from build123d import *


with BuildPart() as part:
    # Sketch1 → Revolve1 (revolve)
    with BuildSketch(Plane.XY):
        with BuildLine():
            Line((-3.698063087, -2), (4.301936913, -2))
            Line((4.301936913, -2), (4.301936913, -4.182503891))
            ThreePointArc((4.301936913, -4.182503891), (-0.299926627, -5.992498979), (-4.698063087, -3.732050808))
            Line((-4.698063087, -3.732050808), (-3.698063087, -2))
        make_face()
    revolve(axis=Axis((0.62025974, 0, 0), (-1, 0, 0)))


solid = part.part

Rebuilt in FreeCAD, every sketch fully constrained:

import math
import FreeCAD as App
import Part
import Sketcher
Q = App.Units.Quantity

doc = App.newDocument("Part")
body = doc.addObject("PartDesign::Body", "Body")

sketch1 = body.newObject("Sketcher::SketchObject", "Sketch")
sketch1.AttachmentSupport = (doc.getObject("XY_Plane"), [""])
sketch1.MapMode = "FlatFace"
sketch1.addGeometry(Part.LineSegment(App.Vector(4.3, -2, 0), App.Vector(-3.7, -2, 0)), False)
sketch1.addGeometry(Part.LineSegment(App.Vector(-3.7, -2, 0), App.Vector(-4.7, -3.7, 0)), False)
sketch1.addGeometry(Part.ArcOfCircle(Part.Circle(App.Vector(0, 0, 0), App.Vector(0, 0, 1), 6), math.radians(-142), math.radians(-44)), False)
sketch1.addGeometry(Part.LineSegment(App.Vector(4.3, -4.2, 0), App.Vector(4.3, -2, 0)), False)
sketch1.addConstraint(Sketcher.Constraint("Coincident", 0, 2, 1, 1))
sketch1.addConstraint(Sketcher.Constraint("Coincident", 1, 2, 2, 1))
sketch1.addConstraint(Sketcher.Constraint("Coincident", 2, 2, 3, 1))
sketch1.addConstraint(Sketcher.Constraint("Coincident", 3, 2, 0, 1))
sketch1.addConstraint(Sketcher.Constraint("Horizontal", 0))
sketch1.addConstraint(Sketcher.Constraint("Vertical", 3))
sketch1.addConstraint(Sketcher.Constraint("Coincident", 2, 3, -1, 1))
sketch1.addConstraint(Sketcher.Constraint("Radius", 2, Q("6 mm")))
sketch1.addConstraint(Sketcher.Constraint("DistanceX", 0, 2, 0, 1, Q("8 mm")))
sketch1.addConstraint(Sketcher.Constraint("Angle", 1, Q("-120 deg")))
sketch1.addConstraint(Sketcher.Constraint("Distance", 1, Q("2 mm")))
sketch1.addConstraint(Sketcher.Constraint("DistanceY", 0, 2, -1, 1, Q("2 mm")))
revolution = body.newObject("PartDesign::Revolution", "Revolution")
revolution.Profile = sketch1
revolution.ReferenceAxis = (sketch1, ["H_Axis"])
revolution.Angle = 360

doc.recompute()
